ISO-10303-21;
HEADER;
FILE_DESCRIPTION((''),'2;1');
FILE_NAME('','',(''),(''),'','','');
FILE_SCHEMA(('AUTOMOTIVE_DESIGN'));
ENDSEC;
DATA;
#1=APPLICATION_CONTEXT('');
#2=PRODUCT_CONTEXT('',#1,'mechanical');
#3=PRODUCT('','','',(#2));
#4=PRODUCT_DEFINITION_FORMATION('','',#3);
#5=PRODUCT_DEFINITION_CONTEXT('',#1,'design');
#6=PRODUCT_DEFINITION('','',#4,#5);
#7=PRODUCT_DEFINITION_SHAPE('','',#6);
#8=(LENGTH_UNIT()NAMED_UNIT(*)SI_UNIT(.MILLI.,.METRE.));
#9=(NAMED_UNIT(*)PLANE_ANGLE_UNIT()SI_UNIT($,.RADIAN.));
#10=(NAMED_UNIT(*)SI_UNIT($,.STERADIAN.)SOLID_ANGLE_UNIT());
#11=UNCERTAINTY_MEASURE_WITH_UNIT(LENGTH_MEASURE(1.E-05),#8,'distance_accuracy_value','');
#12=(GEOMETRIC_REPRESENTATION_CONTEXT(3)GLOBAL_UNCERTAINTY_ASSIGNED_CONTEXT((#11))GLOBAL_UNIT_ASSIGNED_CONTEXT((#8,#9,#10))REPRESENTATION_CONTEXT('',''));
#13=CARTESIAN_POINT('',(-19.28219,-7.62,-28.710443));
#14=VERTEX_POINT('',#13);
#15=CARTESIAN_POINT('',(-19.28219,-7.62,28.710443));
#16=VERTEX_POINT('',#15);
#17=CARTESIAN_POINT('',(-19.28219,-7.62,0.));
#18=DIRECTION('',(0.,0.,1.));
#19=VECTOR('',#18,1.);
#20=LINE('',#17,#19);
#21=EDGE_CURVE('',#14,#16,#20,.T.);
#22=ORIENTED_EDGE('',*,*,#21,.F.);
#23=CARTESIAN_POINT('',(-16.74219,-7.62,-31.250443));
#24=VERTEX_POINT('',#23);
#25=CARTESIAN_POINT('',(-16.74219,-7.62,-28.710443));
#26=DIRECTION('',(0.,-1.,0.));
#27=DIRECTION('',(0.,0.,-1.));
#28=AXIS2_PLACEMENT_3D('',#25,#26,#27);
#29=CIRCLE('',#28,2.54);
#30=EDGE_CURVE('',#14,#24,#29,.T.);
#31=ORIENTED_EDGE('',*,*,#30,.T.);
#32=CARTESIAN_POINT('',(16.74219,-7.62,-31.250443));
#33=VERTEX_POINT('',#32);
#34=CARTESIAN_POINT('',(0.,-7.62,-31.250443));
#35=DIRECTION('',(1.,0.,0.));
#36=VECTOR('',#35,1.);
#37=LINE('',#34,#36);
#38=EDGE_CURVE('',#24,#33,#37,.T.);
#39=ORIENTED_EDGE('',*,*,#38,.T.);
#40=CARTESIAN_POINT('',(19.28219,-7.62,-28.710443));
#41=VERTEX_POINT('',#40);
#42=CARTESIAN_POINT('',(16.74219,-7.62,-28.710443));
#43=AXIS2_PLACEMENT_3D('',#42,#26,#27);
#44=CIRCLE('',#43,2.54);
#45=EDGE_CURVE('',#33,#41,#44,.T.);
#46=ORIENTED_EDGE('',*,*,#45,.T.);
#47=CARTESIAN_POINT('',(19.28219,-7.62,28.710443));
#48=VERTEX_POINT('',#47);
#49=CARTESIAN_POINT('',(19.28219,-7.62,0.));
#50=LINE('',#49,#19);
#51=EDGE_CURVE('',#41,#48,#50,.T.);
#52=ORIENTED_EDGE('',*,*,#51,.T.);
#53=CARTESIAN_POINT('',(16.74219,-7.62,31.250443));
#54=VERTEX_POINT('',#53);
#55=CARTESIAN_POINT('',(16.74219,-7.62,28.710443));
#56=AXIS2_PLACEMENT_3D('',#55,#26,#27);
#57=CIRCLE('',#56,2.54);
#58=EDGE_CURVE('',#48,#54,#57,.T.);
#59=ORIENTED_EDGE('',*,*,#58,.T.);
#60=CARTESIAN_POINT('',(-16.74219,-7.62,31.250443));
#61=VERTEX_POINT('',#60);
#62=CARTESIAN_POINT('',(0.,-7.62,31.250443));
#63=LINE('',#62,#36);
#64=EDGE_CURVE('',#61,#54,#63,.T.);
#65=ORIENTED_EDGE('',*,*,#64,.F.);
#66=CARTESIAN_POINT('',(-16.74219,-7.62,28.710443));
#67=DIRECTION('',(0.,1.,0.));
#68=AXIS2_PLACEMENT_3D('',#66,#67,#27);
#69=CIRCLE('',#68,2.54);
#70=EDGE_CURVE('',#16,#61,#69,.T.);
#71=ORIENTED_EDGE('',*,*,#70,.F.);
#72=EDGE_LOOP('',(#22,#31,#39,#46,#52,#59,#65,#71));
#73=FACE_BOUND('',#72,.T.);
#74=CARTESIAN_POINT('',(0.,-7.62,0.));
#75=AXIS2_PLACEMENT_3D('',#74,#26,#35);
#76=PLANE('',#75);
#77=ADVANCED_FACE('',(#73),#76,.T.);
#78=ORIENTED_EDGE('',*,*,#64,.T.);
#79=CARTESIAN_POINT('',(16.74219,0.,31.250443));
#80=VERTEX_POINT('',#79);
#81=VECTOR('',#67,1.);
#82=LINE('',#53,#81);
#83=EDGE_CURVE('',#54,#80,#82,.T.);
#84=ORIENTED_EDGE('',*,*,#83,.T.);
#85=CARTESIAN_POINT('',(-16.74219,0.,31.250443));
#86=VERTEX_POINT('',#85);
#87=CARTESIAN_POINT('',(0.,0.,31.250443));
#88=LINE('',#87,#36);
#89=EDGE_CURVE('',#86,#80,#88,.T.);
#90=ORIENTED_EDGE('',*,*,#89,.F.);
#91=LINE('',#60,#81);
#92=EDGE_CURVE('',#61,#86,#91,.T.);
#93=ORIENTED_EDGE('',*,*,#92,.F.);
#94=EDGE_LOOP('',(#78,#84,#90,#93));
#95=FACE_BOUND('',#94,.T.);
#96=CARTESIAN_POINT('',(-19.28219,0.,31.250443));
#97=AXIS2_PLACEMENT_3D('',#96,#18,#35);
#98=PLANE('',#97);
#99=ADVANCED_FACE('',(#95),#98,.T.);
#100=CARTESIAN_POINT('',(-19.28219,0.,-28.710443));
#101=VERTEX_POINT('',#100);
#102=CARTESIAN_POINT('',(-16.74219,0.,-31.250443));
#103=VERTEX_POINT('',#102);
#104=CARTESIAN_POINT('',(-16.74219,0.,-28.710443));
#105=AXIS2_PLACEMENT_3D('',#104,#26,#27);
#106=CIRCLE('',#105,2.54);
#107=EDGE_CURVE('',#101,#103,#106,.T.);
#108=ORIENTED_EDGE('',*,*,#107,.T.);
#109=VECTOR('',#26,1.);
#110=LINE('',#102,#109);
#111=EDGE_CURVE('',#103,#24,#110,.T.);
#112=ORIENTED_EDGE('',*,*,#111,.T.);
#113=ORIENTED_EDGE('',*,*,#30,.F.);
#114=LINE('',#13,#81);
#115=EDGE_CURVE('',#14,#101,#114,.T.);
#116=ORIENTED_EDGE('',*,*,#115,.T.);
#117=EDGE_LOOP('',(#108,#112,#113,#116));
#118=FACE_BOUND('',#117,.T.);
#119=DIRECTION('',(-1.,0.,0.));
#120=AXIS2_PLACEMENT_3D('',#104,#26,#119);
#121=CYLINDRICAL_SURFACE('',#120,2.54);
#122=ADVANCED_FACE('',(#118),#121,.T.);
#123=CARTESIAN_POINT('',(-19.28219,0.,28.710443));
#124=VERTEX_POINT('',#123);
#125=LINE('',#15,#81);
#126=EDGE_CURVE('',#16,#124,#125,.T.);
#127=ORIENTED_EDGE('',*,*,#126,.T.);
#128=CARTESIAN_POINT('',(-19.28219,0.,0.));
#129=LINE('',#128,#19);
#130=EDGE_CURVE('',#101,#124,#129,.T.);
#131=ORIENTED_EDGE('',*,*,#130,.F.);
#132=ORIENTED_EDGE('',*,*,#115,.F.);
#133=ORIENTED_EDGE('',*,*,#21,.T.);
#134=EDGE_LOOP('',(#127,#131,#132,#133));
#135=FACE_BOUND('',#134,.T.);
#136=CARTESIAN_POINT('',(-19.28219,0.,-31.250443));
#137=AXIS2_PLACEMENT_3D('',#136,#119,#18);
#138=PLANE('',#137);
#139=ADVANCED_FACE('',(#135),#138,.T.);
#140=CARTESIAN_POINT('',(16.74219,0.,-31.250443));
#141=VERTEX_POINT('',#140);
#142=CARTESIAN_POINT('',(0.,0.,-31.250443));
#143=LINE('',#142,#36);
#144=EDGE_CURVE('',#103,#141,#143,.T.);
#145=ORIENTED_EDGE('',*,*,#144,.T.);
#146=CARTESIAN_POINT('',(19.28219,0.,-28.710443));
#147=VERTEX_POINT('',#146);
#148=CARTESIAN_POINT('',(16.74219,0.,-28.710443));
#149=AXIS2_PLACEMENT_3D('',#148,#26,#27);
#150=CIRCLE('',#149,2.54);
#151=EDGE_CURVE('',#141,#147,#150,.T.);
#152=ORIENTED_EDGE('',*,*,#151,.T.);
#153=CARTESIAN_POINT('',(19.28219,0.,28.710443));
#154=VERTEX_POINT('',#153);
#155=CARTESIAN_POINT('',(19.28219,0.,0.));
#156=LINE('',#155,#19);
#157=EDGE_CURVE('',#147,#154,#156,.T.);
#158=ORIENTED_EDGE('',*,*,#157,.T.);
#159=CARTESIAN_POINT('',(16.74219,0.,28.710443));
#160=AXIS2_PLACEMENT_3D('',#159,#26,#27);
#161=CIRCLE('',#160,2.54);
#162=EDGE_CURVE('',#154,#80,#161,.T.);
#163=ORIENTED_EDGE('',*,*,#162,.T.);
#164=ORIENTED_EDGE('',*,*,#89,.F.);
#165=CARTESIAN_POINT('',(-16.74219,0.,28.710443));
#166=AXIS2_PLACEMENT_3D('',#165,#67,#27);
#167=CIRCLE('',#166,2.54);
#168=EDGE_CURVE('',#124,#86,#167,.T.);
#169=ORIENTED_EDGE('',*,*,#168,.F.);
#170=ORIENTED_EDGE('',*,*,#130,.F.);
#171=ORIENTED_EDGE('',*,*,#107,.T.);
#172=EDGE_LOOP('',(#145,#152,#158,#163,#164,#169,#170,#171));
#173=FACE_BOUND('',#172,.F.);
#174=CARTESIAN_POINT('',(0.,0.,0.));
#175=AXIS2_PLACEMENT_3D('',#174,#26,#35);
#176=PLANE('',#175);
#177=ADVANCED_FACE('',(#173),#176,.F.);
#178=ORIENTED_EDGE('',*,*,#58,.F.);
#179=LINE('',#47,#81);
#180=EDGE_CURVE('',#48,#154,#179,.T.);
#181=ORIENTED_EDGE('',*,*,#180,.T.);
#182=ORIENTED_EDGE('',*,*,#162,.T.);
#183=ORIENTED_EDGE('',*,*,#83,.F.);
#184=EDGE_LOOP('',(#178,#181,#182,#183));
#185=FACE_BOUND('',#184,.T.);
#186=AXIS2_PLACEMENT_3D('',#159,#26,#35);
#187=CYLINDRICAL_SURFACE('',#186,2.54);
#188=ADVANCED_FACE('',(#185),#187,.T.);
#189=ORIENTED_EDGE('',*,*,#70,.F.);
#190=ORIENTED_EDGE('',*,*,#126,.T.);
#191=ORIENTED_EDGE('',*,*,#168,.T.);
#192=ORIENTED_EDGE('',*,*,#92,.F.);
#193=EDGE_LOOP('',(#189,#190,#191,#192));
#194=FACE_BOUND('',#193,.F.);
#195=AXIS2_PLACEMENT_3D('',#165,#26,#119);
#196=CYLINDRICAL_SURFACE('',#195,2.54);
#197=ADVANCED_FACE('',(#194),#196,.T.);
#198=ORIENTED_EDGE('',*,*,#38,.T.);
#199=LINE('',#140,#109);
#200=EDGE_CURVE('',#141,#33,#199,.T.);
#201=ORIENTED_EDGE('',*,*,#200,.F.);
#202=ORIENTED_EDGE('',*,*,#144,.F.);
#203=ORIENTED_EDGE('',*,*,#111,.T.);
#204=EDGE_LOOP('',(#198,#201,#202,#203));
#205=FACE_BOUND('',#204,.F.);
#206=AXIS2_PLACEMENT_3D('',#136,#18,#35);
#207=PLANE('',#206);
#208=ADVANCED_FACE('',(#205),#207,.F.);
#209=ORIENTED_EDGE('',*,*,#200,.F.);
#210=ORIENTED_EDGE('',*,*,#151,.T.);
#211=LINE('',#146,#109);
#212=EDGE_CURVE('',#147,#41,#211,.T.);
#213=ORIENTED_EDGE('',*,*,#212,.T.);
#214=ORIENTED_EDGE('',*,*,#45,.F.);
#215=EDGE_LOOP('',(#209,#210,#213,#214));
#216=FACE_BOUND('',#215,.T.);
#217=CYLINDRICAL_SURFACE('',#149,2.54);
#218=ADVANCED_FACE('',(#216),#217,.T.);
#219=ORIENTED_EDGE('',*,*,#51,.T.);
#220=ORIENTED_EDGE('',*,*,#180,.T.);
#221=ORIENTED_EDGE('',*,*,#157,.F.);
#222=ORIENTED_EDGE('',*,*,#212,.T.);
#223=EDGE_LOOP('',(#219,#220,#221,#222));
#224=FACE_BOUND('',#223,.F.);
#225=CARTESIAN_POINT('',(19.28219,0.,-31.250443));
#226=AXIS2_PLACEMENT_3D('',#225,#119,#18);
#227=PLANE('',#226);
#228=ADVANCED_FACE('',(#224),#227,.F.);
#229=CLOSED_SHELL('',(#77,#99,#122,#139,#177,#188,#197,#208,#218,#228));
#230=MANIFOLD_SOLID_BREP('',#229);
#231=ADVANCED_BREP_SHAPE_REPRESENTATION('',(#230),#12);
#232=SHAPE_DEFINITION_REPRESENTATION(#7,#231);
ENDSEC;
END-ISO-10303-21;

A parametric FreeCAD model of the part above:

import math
import FreeCAD as App
import Part
import Sketcher
Q = App.Units.Quantity


def edges_at(feature, points):
    """Names of the edges that pass closest to the given points."""
    edges = feature.Shape.Edges
    near = lambda p: min(range(len(edges)), key=lambda i: edges[i].distToShape(Part.Vertex(*p))[0])
    return sorted({f"Edge{near(p) + 1}" for p in points})

doc = App.newDocument("Part")
body = doc.addObject("PartDesign::Body", "Body")

# Sketch on XZ plane
sketch1 = body.newObject("Sketcher::SketchObject", "Sketch")
sketch1.AttachmentSupport = (doc.getObject("XZ_Plane"), [""])
sketch1.MapMode = "FlatFace"
sketch1.addGeometry([
    Part.LineSegment(App.Vector(-19.28219, 31.250443, 0), App.Vector(-19.28219, -31.250443, 0)),
    Part.LineSegment(App.Vector(-19.28219, -31.250443, 0), App.Vector(19.28219, -31.250443, 0)),
    Part.LineSegment(App.Vector(19.28219, -31.250443, 0), App.Vector(19.28219, 31.250443, 0)),
    Part.LineSegment(App.Vector(19.28219, 31.250443, 0), App.Vector(-19.28219, 31.250443, 0)),
], False)
sketch1.addConstraint([
    Sketcher.Constraint("Coincident", 0, 2, 1, 1),
    Sketcher.Constraint("Coincident", 1, 2, 2, 1),
    Sketcher.Constraint("Coincident", 2, 2, 3, 1),
    Sketcher.Constraint("Coincident", 3, 2, 0, 1),
    Sketcher.Constraint("Vertical", 0),
    Sketcher.Constraint("Horizontal", 1),
    Sketcher.Constraint("Vertical", 2),
    Sketcher.Constraint("Horizontal", 3),
    Sketcher.Constraint("Symmetric", 0, 2, 2, 2, -1, 1),
    Sketcher.Constraint("DistanceX", 1, 1, 1, 2, 38.56438),
    Sketcher.Constraint("DistanceY", 0, 2, 0, 1, 62.500886),
])
pad1 = body.newObject("PartDesign::Pad", "Pad")
pad1.Profile = sketch1
pad1.Length = Q("0.3 in")
doc.recompute()

fillet = body.newObject("PartDesign::Fillet", "Fillet")
fillet.Base = (pad1, edges_at(pad1, [
    (19.282, -3.81, 31.25),
    (-19.282, -3.81, 31.25),
    (19.282, -3.81, -31.25),
    (-19.282, -3.81, -31.25),
]))
fillet.Radius = Q("0.1 in")

# Sketch on XZ plane
sketch2 = body.newObject("Sketcher::SketchObject", "Sketch001")
sketch2.AttachmentSupport = (doc.getObject("XZ_Plane"), [""])
sketch2.MapMode = "FlatFace"
sketch2.AttachmentOffset = App.Placement(App.Vector(0, 0, 0.3 * 25.4), App.Rotation())
sketch2.addGeometry([
    Part.ArcOfCircle(Part.Circle(App.Vector(-16.742191, -28.710444, 0), App.Vector(0, 0, 1), 2.539999), math.radians(179.999979), math.radians(270.000021)),  # 0
    Part.LineSegment(App.Vector(-16.74219, -31.250443, 0), App.Vector(16.74219, -31.250443, 0)),  # 1
    Part.ArcOfCircle(Part.Circle(App.Vector(16.742191, -28.710444, 0), App.Vector(0, 0, 1), 2.539999), math.radians(-90.000021), math.radians(0.000021)),  # 2
    Part.LineSegment(App.Vector(19.28219, -28.710443, 0), App.Vector(19.28219, 28.710443, 0)),  # 3
    Part.ArcOfCircle(Part.Circle(App.Vector(16.742191, 28.710444, 0), App.Vector(0, 0, 1), 2.539999), math.radians(-0.000021), math.radians(90.000021)),  # 4
    Part.LineSegment(App.Vector(16.74219, 31.250443, 0), App.Vector(-16.74219, 31.250443, 0)),  # 5
    Part.ArcOfCircle(Part.Circle(App.Vector(-16.742191, 28.710444, 0), App.Vector(0, 0, 1), 2.539999), math.radians(89.999979), math.radians(180.000021)),  # 6
    Part.LineSegment(App.Vector(-19.28219, 28.710443, 0), App.Vector(-19.28219, -28.710443, 0)),  # 7
    Part.LineSegment(App.Vector(16.74219, 8.080859, 0), App.Vector(-16.74219, 8.080859, 0)),  # 8
    Part.LineSegment(App.Vector(-16.74219, 8.080859, 0), App.Vector(-16.74219, 28.710443, 0)),  # 9
    Part.LineSegment(App.Vector(-16.74219, 28.710443, 0), App.Vector(16.74219, 28.710443, 0)),  # 10
    Part.LineSegment(App.Vector(16.74219, 28.710443, 0), App.Vector(16.74219, 8.080859, 0)),  # 11
], False)
sketch2.addConstraint([
    Sketcher.Constraint("Tangent", 0, 2, 1, 1),
    Sketcher.Constraint("Tangent", 1, 2, 2, 1),
    Sketcher.Constraint("Tangent", 2, 2, 3, 1),
    Sketcher.Constraint("Tangent", 3, 2, 4, 1),
    Sketcher.Constraint("Tangent", 4, 2, 5, 1),
    Sketcher.Constraint("Tangent", 5, 2, 6, 1),
    Sketcher.Constraint("Tangent", 6, 2, 7, 1),
    Sketcher.Constraint("Tangent", 7, 2, 0, 1),
    Sketcher.Constraint("Coincident", 8, 2, 9, 1),
    Sketcher.Constraint("Coincident", 9, 2, 10, 1),
    Sketcher.Constraint("Coincident", 10, 2, 11, 1),
    Sketcher.Constraint("Coincident", 11, 2, 8, 1),
    Sketcher.Constraint("Horizontal", 1),
    Sketcher.Constraint("Vertical", 3),
    Sketcher.Constraint("Horizontal", 5),
    Sketcher.Constraint("Vertical", 7),
    Sketcher.Constraint("Horizontal", 8),
    Sketcher.Constraint("Vertical", 9),
    Sketcher.Constraint("Horizontal", 10),
    Sketcher.Constraint("Vertical", 11),
    Sketcher.Constraint("Coincident", 9, 2, 6, 3),
    Sketcher.Constraint("Coincident", 10, 2, 4, 3),
    Sketcher.Constraint("Equal", 0, 2),
    Sketcher.Constraint("Equal", 2, 4),
    Sketcher.Constraint("Symmetric", 0, 3, 4, 3, -1, 1),
    Sketcher.Constraint("Radius", 0, Q("0.1 in")),
    Sketcher.Constraint("DistanceX", 1, 1, 1, 2, 33.48438),
    Sketcher.Constraint("DistanceY", 3, 1, 3, 2, 57.420886),
    Sketcher.Constraint("DistanceY", 9, 1, 9, 2, 20.629584),
])
pad2 = body.newObject("PartDesign::Pad", "Pad001")
pad2.Profile = sketch2
pad2.Length = Q("0.05 in")
pad2.Reversed = True

doc.recompute()
